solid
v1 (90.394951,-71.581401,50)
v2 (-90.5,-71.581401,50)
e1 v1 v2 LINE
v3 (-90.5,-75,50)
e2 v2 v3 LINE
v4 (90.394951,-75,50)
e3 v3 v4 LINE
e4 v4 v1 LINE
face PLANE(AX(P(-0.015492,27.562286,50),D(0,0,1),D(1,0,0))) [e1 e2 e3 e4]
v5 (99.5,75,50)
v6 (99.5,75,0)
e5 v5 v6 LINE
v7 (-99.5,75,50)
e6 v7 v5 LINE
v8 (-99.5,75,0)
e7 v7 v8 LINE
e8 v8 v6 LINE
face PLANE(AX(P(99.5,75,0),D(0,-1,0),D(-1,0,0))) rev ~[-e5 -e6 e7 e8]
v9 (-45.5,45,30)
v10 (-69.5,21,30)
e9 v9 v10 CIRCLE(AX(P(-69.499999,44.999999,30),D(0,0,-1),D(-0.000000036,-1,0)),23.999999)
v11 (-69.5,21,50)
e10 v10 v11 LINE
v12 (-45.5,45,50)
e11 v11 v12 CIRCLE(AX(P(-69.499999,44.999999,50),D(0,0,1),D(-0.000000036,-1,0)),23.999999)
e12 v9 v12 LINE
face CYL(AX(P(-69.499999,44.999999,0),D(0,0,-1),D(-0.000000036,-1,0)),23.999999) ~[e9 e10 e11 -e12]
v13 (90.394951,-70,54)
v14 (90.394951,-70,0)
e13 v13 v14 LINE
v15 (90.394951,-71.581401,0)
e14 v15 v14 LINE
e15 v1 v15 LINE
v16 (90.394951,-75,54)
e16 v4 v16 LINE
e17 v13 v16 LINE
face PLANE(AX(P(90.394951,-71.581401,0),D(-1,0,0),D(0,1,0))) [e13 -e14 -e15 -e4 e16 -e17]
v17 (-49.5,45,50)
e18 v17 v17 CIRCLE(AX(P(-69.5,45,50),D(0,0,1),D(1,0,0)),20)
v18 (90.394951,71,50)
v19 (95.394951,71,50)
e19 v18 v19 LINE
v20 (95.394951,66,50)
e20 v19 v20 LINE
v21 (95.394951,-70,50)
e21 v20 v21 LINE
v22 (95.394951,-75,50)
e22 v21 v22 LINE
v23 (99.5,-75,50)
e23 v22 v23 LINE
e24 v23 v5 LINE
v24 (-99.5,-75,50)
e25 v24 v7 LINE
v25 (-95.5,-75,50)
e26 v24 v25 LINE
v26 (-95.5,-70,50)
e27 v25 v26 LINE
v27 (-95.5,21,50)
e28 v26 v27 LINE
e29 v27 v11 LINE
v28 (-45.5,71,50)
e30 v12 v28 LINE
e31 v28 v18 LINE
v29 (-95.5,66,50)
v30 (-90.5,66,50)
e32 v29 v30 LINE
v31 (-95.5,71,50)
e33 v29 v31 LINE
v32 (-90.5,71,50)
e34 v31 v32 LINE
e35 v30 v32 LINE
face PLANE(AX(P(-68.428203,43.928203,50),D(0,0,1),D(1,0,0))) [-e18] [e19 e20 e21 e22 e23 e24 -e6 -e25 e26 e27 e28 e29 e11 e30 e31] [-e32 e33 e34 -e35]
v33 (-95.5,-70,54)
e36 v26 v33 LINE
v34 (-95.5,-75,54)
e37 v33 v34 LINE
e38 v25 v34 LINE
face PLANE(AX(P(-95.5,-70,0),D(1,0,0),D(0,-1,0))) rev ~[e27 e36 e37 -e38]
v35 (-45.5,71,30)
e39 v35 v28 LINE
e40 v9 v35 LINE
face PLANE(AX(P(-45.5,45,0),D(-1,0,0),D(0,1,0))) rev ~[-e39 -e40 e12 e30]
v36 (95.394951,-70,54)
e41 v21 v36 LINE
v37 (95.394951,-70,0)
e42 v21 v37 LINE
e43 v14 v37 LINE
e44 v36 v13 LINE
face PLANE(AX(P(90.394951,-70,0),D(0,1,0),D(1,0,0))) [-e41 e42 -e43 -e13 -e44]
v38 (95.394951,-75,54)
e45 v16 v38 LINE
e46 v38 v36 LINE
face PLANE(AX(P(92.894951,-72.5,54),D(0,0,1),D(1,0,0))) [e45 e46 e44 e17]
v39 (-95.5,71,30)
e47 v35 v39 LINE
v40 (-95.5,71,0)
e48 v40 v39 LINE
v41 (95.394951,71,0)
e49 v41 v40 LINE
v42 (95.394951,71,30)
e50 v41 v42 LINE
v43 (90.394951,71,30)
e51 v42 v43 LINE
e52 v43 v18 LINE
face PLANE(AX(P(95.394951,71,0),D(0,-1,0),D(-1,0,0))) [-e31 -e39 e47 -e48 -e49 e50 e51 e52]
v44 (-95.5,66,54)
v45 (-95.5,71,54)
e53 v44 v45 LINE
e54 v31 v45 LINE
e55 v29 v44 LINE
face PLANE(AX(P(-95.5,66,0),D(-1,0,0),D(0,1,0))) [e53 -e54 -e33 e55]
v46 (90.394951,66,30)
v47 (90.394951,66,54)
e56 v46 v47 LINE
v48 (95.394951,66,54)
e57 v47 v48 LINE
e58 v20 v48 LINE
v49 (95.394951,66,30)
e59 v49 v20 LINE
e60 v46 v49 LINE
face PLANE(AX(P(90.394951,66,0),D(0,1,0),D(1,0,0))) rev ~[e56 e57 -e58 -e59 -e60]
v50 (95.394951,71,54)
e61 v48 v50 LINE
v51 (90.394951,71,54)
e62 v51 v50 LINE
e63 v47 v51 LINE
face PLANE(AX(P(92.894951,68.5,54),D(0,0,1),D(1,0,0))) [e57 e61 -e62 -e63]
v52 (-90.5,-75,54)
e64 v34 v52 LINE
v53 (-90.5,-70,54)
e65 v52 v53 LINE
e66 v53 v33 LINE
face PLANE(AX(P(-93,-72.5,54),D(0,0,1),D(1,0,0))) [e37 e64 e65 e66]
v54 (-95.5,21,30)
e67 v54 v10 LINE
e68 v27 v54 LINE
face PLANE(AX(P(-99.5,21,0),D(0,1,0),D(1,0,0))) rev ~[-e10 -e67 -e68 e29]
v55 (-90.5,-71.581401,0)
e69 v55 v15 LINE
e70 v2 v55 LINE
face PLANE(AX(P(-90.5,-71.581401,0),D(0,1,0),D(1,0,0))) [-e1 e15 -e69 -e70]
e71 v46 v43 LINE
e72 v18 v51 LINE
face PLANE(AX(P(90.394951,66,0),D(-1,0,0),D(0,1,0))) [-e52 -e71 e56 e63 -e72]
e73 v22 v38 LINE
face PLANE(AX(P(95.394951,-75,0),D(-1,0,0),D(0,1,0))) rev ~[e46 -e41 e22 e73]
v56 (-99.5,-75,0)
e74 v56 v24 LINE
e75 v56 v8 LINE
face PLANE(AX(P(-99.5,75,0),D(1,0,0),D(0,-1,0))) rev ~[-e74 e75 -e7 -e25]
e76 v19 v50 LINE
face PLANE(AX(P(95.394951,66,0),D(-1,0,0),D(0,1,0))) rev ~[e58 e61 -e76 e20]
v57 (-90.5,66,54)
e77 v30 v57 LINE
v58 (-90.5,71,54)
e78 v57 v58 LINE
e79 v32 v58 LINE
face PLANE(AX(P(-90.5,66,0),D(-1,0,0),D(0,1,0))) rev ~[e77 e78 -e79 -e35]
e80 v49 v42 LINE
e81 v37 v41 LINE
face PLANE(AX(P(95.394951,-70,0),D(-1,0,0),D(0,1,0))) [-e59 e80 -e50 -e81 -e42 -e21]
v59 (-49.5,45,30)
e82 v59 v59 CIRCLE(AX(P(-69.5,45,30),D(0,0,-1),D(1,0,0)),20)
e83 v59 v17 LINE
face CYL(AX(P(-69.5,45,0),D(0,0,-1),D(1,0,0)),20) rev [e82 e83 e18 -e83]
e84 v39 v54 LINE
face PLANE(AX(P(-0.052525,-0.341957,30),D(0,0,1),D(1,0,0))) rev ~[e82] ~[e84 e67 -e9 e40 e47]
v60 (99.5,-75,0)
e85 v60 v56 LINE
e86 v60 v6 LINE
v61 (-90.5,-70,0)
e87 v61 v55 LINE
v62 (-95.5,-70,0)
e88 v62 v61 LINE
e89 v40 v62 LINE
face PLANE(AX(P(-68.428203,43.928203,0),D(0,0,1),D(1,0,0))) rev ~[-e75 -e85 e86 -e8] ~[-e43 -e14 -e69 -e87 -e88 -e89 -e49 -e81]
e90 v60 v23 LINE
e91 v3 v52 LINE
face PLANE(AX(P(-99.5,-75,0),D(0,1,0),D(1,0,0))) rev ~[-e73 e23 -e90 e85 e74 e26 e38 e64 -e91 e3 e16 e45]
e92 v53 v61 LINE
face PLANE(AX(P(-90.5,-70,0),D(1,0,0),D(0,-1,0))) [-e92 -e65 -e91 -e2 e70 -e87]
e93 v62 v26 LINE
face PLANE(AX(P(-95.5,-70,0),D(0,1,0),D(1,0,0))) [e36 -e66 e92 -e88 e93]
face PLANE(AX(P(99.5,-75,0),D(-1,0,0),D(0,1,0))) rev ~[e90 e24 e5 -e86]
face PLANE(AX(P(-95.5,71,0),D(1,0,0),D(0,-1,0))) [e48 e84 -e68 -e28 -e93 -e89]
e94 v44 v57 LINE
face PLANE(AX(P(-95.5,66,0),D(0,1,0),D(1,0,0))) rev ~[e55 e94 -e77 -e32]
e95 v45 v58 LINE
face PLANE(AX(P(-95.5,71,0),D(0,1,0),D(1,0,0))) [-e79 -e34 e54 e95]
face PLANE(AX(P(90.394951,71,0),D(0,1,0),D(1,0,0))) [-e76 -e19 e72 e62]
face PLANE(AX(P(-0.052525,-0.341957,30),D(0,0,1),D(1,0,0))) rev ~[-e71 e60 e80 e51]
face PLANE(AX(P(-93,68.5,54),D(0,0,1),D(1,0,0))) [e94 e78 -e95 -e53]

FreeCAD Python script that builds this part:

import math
import FreeCAD as App
import Part
import Sketcher

V = App.Vector
Q = App.Units.Quantity


def add_polygon(sketch, points):
    """Adds a closed chain of lines whose ends are joined by coincident constraints."""
    first, n = sketch.GeometryCount, len(points)
    for a, b in zip(points, points[1:] + points[:1]):
        sketch.addGeometry(Part.LineSegment(App.Vector(*a, 0), App.Vector(*b, 0)), False)
    for i in range(n):
        sketch.addConstraint(Sketcher.Constraint("Coincident", first + i, 2, first + (i + 1) % n, 1))

doc = App.newDocument("Part")
body = doc.addObject("PartDesign::Body", "Body")

# Sketch on XY plane
sketch1 = body.newObject("Sketcher::SketchObject", "Sketch")
sketch1.AttachmentSupport = (doc.getObject("XY_Plane"), [""])
sketch1.MapMode = "FlatFace"
add_polygon(sketch1, [(-100, 75), (-100, -75), (100, -75), (100, 75)])  # lines 0-3
sketch1.addGeometry(Part.ArcOfCircle(Part.Circle(V(-70, 45, 0), V(0, 0, 1), 24), math.radians(0), math.radians(270)), False)  # 4
sketch1.addGeometry(Part.ArcOfCircle(Part.Circle(V(-69, 45, 0), V(0, 0, 1), 24), math.radians(-90), math.radians(0)), False)  # 5
sketch1.addConstraint([
    Sketcher.Constraint("Tangent", 4, 1, 5, 2),
    Sketcher.Constraint("Coincident", 5, 1, 4, 2),
    Sketcher.Constraint("Vertical", 0),
    Sketcher.Constraint("Horizontal", 1),
    Sketcher.Constraint("Vertical", 2),
    Sketcher.Constraint("Horizontal", 3),
    Sketcher.Constraint("Symmetric", 0, 2, 2, 2, -1, 1),
    Sketcher.Constraint("Horizontal", 5, 3, 4, 1),
    Sketcher.Constraint("Vertical", 4, 3, 5, 1),
    Sketcher.Constraint("Radius", 4, Q("24 mm")),
    Sketcher.Constraint("DistanceX", 1, 1, 1, 2, Q("199 mm")),
    Sketcher.Constraint("DistanceY", 0, 2, 0, 1, Q("150 mm")),
    Sketcher.Constraint("DistanceY", -1, 1, 4, 3, Q("45 mm")),
    Sketcher.Constraint("DistanceX", 0, 2, 5, 3, Q("30.000001 mm")),
])
pad1 = body.newObject("PartDesign::Pad", "Pad")
pad1.Profile = sketch1
pad1.Length = 6

# Sketch on XY plane
sketch2 = body.newObject("Sketcher::SketchObject", "Sketch001")
sketch2.AttachmentSupport = (doc.getObject("XY_Plane"), [""])
sketch2.MapMode = "FlatFace"
add_polygon(sketch2, [(99.5, 75), (-99.5, 75), (-99.5, -75), (99.5, -75)])  # lines 0-3
add_polygon(sketch2, [(-90.5, -71.6), (-90.5, -70), (-95.5, -70), (-95.5, 71), (95.4, 71), (95.4, -70), (90.4, -70), (90.4, -71.6)])  # lines 4-11
sketch2.addConstraint([
    Sketcher.Constraint("Horizontal", 0),
    Sketcher.Constraint("Vertical", 1),
    Sketcher.Constraint("Horizontal", 2),
    Sketcher.Constraint("Vertical", 3),
    Sketcher.Constraint("Vertical", 4),
    Sketcher.Constraint("Horizontal", 5),
    Sketcher.Constraint("Vertical", 6),
    Sketcher.Constraint("Horizontal", 7),
    Sketcher.Constraint("Vertical", 8),
    Sketcher.Constraint("Horizontal", 9),
    Sketcher.Constraint("Vertical", 10),
    Sketcher.Constraint("Horizontal", 11),
    Sketcher.Constraint("Symmetric", 0, 2, 2, 2, -1, 1),
    Sketcher.Constraint("Horizontal", 5, 2, 8, 2),
    Sketcher.Constraint("Equal", 5, 9),
    Sketcher.Constraint("DistanceX", 0, 2, 0, 1, Q("199 mm")),
    Sketcher.Constraint("DistanceX", 5, 2, 5, 1, Q("5 mm")),
    Sketcher.Constraint("DistanceY", 1, 2, 1, 1, Q("150 mm")),
    Sketcher.Constraint("DistanceY", 6, 1, 6, 2, Q("141 mm")),
    Sketcher.Constraint("DistanceY", 4, 2, -1, 1, Q("70 mm")),
    Sketcher.Constraint("DistanceX", 1, 2, 4, 2, Q("9 mm")),
    Sketcher.Constraint("DistanceY", 4, 1, 4, 2, Q("1.581401 mm")),
    Sketcher.Constraint("DistanceX", 7, 1, 7, 2, Q("190.894951 mm")),
])
pad2 = body.newObject("PartDesign::Pad", "Pad001")
pad2.Profile = sketch2
pad2.Length = 50

# Sketch on XY plane
sketch3 = body.newObject("Sketcher::SketchObject", "Sketch002")
sketch3.AttachmentSupport = (doc.getObject("XY_Plane"), [""])
sketch3.MapMode = "FlatFace"
add_polygon(sketch3, [(-96, 71), (-96, 66), (-90, 66), (-90, 71)])  # lines 0-3
sketch3.addConstraint([
    Sketcher.Constraint("Vertical", 0),
    Sketcher.Constraint("Horizontal", 1),
    Sketcher.Constraint("Vertical", 2),
    Sketcher.Constraint("Horizontal", 3),
    Sketcher.Constraint("Equal", 3, 0),
    Sketcher.Constraint("DistanceX", 1, 1, 1, 2, Q("5 mm")),
    Sketcher.Constraint("DistanceY", -1, 1, 0, 2, Q("66 mm")),
    Sketcher.Constraint("DistanceX", 0, 2, -1, 1, Q("95.5 mm")),
])
pad3 = body.newObject("PartDesign::Pad", "Pad002")
pad3.Profile = sketch3
pad3.Length = 54

# Sketch on XY plane
sketch4 = body.newObject("Sketcher::SketchObject", "Sketch003")
sketch4.AttachmentSupport = (doc.getObject("XY_Plane"), [""])
sketch4.MapMode = "FlatFace"
add_polygon(sketch4, [(90, 71), (90, 66), (95, 66), (95, 71)])  # lines 0-3
add_polygon(sketch4, [(90, -75), (95, -75), (95, -70), (90, -70)])  # lines 4-7
add_polygon(sketch4, [(-96, -70), (-96, -75), (-90, -75), (-90, -70)])  # lines 8-11
sketch4.addConstraint([
    Sketcher.Constraint("Vertical", 0),
    Sketcher.Constraint("Horizontal", 1),
    Sketcher.Constraint("Vertical", 2),
    Sketcher.Constraint("Horizontal", 3),
    Sketcher.Constraint("Horizontal", 4),
    Sketcher.Constraint("Vertical", 5),
    Sketcher.Constraint("Horizontal", 6),
    Sketcher.Constraint("Vertical", 7),
    Sketcher.Constraint("Vertical", 8),
    Sketcher.Constraint("Horizontal", 9),
    Sketcher.Constraint("Vertical", 10),
    Sketcher.Constraint("Horizontal", 11),
    Sketcher.Constraint("Horizontal", 7, 2, 8, 2),
    Sketcher.Constraint("Horizontal", 6, 2, 10, 2),
    Sketcher.Constraint("Vertical", 2, 2, 4, 2),
    Sketcher.Constraint("Vertical", 3, 2, 6, 2),
    Sketcher.Constraint("Equal", 6, 9),
    Sketcher.Constraint("Equal", 11, 0),
    Sketcher.Constraint("Equal", 2, 5),
    Sketcher.Constraint("DistanceX", 1, 1, 1, 2, Q("5 mm")),
    Sketcher.Constraint("DistanceY", -1, 1, 0, 2, Q("66 mm")),
    Sketcher.Constraint("DistanceY", 4, 2, -1, 1, Q("75 mm")),
    Sketcher.Constraint("DistanceX", 8, 2, -1, 1, Q("95.5 mm")),
    Sketcher.Constraint("DistanceX", -1, 1, 0, 2, Q("90.394951 mm")),
])
pad4 = body.newObject("PartDesign::Pad", "Pad003")
pad4.Profile = sketch4
pad4.Length = 54

# Sketch on XY plane
sketch5 = body.newObject("Sketcher::SketchObject", "Sketch004")
sketch5.AttachmentSupport = (doc.getObject("XY_Plane"), [""])
sketch5.MapMode = "FlatFace"
sketch5.addGeometry([
    Part.ArcOfCircle(Part.Circle(V(-69, 45, 0), V(0, 0, 1), 24), math.radians(-90), math.radians(0)),  # 0
    Part.LineSegment(V(-46, 45, 0), V(-46, 75, 0)),  # 1
    Part.LineSegment(V(-46, 75, 0), V(-100, 75, 0)),  # 2
    Part.LineSegment(V(-100, 75, 0), V(-100, 21, 0)),  # 3
    Part.LineSegment(V(-100, 21, 0), V(-70, 21, 0)),  # 4
    Part.Circle(V(-70, 45, 0), V(0, 0, 1), 20),  # 5
], False)
sketch5.addConstraint([
    Sketcher.Constraint("Tangent", 0, 2, 1, 1),
    Sketcher.Constraint("Coincident", 1, 2, 2, 1),
    Sketcher.Constraint("Coincident", 2, 2, 3, 1),
    Sketcher.Constraint("Coincident", 3, 2, 4, 1),
    Sketcher.Constraint("Tangent", 4, 2, 0, 1),
    Sketcher.Constraint("Vertical", 1),
    Sketcher.Constraint("Horizontal", 2),
    Sketcher.Constraint("Vertical", 3),
    Sketcher.Constraint("Horizontal", 4),
    Sketcher.Constraint("Coincident", 5, 3, 0, 3),
    Sketcher.Constraint("Equal", 4, 1),
    Sketcher.Constraint("Diameter", 5, Q("40 mm")),
    Sketcher.Constraint("Radius", 0, Q("23.999999 mm")),
    Sketcher.Constraint("DistanceX", 2, 2, 2, 1, Q("54 mm")),
    Sketcher.Constraint("DistanceY", -1, 1, 0, 3, Q("44.999999 mm")),
    Sketcher.Constraint("DistanceX", 0, 3, -1, 1, Q("69.499999 mm")),
])
pad5 = body.newObject("PartDesign::Pad", "Pad004")
pad5.Profile = sketch5
pad5.Length = 50

# Sketch on XY plane
sketch6 = body.newObject("Sketcher::SketchObject", "Sketch005")
sketch6.AttachmentSupport = (doc.getObject("XY_Plane"), [""])
sketch6.MapMode = "FlatFace"
add_polygon(sketch6, [(-95.5, -70), (-90.5, -70), (-90.5, -71.6), (90.4, -71.6), (90.4, -70), (95.4, -70), (95.4, 71), (-95.5, 71)])  # lines 0-7
sketch6.addConstraint([
    Sketcher.Constraint("Horizontal", 0),
    Sketcher.Constraint("Vertical", 1),
    Sketcher.Constraint("Horizontal", 2),
    Sketcher.Constraint("Vertical", 3),
    Sketcher.Constraint("Horizontal", 4),
    Sketcher.Constraint("Vertical", 5),
    Sketcher.Constraint("Horizontal", 6),
    Sketcher.Constraint("Vertical", 7),
    Sketcher.Constraint("Horizontal", 0, 2, 3, 2),
    Sketcher.Constraint("Equal", 0, 4),
    Sketcher.Constraint("DistanceX", 0, 1, 0, 2, Q("5 mm")),
    Sketcher.Constraint("DistanceY", 5, 1, 5, 2, Q("141 mm")),
    Sketcher.Constraint("DistanceY", 0, 2, -1, 1, Q("70 mm")),
    Sketcher.Constraint("DistanceX", 0, 2, -1, 1, Q("90.5 mm")),
    Sketcher.Constraint("DistanceY", 1, 2, 1, 1, Q("1.581401 mm")),
    Sketcher.Constraint("DistanceX", 2, 1, 2, 2, Q("180.894951 mm")),
])
pocket1 = body.newObject("PartDesign::Pocket", "Pocket")
pocket1.Profile = sketch6
pocket1.Length = 30
pocket1.Reversed = True

doc.recompute()
